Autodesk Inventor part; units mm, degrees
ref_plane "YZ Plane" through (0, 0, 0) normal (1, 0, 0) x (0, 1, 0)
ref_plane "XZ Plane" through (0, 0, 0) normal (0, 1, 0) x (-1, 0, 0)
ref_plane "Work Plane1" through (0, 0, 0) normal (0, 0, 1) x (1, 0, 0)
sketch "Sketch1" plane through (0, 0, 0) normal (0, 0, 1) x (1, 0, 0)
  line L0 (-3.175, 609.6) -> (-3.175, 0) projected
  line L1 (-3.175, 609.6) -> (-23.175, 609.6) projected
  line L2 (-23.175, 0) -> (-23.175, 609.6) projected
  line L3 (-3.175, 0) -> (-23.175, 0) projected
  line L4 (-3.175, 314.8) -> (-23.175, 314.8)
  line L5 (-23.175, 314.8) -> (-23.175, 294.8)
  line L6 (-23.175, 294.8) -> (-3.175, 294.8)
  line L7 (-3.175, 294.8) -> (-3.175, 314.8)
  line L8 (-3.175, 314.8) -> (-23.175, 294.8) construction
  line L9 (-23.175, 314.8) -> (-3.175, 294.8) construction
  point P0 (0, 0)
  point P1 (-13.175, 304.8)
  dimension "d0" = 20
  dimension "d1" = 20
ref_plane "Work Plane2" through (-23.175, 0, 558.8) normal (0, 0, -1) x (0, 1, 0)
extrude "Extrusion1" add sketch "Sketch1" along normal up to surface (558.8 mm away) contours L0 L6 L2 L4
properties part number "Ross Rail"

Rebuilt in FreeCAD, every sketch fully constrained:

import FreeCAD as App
import Part
import Sketcher

V = App.Vector
Q = App.Units.Quantity

doc = App.newDocument("Part")
body = doc.addObject("PartDesign::Body", "Body")

# Sketch on XY plane
sketch1 = body.newObject("Sketcher::SketchObject", "Sketch")
sketch1.AttachmentSupport = (doc.getObject("XY_Plane"), [""])
sketch1.MapMode = "FlatFace"
sketch1.addGeometry(Part.LineSegment(V(-3, 295, 0), V(-3, 315, 0)), False)
sketch1.addGeometry(Part.LineSegment(V(-3, 315, 0), V(-23, 315, 0)), False)
sketch1.addGeometry(Part.LineSegment(V(-23, 315, 0), V(-23, 295, 0)), False)
sketch1.addGeometry(Part.LineSegment(V(-23, 295, 0), V(-3, 295, 0)), False)
sketch1.addConstraint(Sketcher.Constraint("Coincident", 0, 2, 1, 1))
sketch1.addConstraint(Sketcher.Constraint("Coincident", 1, 2, 2, 1))
sketch1.addConstraint(Sketcher.Constraint("Coincident", 2, 2, 3, 1))
sketch1.addConstraint(Sketcher.Constraint("Coincident", 3, 2, 0, 1))
sketch1.addConstraint(Sketcher.Constraint("Vertical", 0))
sketch1.addConstraint(Sketcher.Constraint("Horizontal", 1))
sketch1.addConstraint(Sketcher.Constraint("Vertical", 2))
sketch1.addConstraint(Sketcher.Constraint("Horizontal", 3))
sketch1.addConstraint(Sketcher.Constraint("Equal", 3, 0))
sketch1.addConstraint(Sketcher.Constraint("DistanceX", 1, 2, 1, 1, Q("0.7874 in")))
sketch1.addConstraint(Sketcher.Constraint("DistanceX", 0, 2, -1, 1, Q("0.125 in")))
sketch1.addConstraint(Sketcher.Constraint("DistanceY", -1, 1, 0, 2, Q("12.3937 in")))
pad1 = body.newObject("PartDesign::Pad", "Pad")
pad1.Profile = sketch1
pad1.Length = Q("22 in")

doc.recompute()
